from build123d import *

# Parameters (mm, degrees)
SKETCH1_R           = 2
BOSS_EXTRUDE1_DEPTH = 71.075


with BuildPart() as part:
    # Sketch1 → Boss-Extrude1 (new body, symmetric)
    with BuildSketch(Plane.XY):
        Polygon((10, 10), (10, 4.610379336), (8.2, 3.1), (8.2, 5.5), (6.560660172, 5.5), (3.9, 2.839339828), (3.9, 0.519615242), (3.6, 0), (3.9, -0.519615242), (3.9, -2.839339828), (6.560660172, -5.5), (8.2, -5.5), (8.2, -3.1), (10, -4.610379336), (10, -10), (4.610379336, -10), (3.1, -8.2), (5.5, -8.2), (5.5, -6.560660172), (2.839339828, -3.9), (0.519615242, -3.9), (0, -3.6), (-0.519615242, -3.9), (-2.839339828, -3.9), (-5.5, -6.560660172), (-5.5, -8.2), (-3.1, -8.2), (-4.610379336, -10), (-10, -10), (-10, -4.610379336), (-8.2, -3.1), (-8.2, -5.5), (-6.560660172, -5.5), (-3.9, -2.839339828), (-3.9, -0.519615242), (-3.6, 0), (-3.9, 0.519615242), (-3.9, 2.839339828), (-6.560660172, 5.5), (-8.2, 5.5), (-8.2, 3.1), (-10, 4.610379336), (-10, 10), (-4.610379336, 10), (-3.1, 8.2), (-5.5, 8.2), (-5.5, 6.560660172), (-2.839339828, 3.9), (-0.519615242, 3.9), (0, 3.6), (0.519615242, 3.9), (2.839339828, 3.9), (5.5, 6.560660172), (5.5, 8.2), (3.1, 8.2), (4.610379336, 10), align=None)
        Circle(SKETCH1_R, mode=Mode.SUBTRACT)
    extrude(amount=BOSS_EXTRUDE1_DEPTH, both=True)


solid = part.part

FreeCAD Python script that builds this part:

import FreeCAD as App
import Part
import Sketcher
Q = App.Units.Quantity

doc = App.newDocument("Part")
body = doc.addObject("PartDesign::Body", "Body")

# Sketch on XY plane
sketch1 = doc.addObject("Sketcher::SketchObject", "Sketch")
body.addObject(sketch1)
sketch1.AttachmentSupport = (doc.XY_Plane, [""])
sketch1.MapMode = "FlatFace"
sketch1.addGeometry([
    Part.LineSegment(App.Vector(10, 4.610379, 0), App.Vector(10, 10, 0)),  # 0
    Part.LineSegment(App.Vector(10, 10, 0), App.Vector(4.610379, 10, 0)),  # 1
    Part.LineSegment(App.Vector(4.610379, 10, 0), App.Vector(3.1, 8.2, 0)),  # 2
    Part.LineSegment(App.Vector(3.1, 8.2, 0), App.Vector(5.5, 8.2, 0)),  # 3
    Part.LineSegment(App.Vector(5.5, 8.2, 0), App.Vector(5.5, 6.56066, 0)),  # 4
    Part.LineSegment(App.Vector(5.5, 6.56066, 0), App.Vector(2.83934, 3.9, 0)),  # 5
    Part.LineSegment(App.Vector(2.83934, 3.9, 0), App.Vector(0.519615, 3.9, 0)),  # 6
    Part.LineSegment(App.Vector(0.519615, 3.9, 0), App.Vector(0, 3.6, 0)),  # 7
    Part.LineSegment(App.Vector(0, 3.6, 0), App.Vector(-0.519615, 3.9, 0)),  # 8
    Part.LineSegment(App.Vector(-0.519615, 3.9, 0), App.Vector(-2.83934, 3.9, 0)),  # 9
    Part.LineSegment(App.Vector(-2.83934, 3.9, 0), App.Vector(-5.5, 6.56066, 0)),  # 10
    Part.LineSegment(App.Vector(-5.5, 6.56066, 0), App.Vector(-5.5, 8.2, 0)),  # 11
    Part.LineSegment(App.Vector(-5.5, 8.2, 0), App.Vector(-3.1, 8.2, 0)),  # 12
    Part.LineSegment(App.Vector(-3.1, 8.2, 0), App.Vector(-4.610379, 10, 0)),  # 13
    Part.LineSegment(App.Vector(-4.610379, 10, 0), App.Vector(-10, 10, 0)),  # 14
    Part.LineSegment(App.Vector(-10, 10, 0), App.Vector(-10, 4.610379, 0)),  # 15
    Part.LineSegment(App.Vector(-10, 4.610379, 0), App.Vector(-8.2, 3.1, 0)),  # 16
    Part.LineSegment(App.Vector(-8.2, 3.1, 0), App.Vector(-8.2, 5.5, 0)),  # 17
    Part.LineSegment(App.Vector(-8.2, 5.5, 0), App.Vector(-6.56066, 5.5, 0)),  # 18
    Part.LineSegment(App.Vector(-6.56066, 5.5, 0), App.Vector(-3.9, 2.83934, 0)),  # 19
    Part.LineSegment(App.Vector(-3.9, 2.83934, 0), App.Vector(-3.9, 0.519615, 0)),  # 20
    Part.LineSegment(App.Vector(-3.9, 0.519615, 0), App.Vector(-3.6, 0, 0)),  # 21
    Part.LineSegment(App.Vector(-3.6, 0, 0), App.Vector(-3.9, -0.519615, 0)),  # 22
    Part.LineSegment(App.Vector(-3.9, -0.519615, 0), App.Vector(-3.9, -2.83934, 0)),  # 23
    Part.LineSegment(App.Vector(-3.9, -2.83934, 0), App.Vector(-6.56066, -5.5, 0)),  # 24
    Part.LineSegment(App.Vector(-6.56066, -5.5, 0), App.Vector(-8.2, -5.5, 0)),  # 25
    Part.LineSegment(App.Vector(-8.2, -5.5, 0), App.Vector(-8.2, -3.1, 0)),  # 26
    Part.LineSegment(App.Vector(-8.2, -3.1, 0), App.Vector(-10, -4.610379, 0)),  # 27
    Part.LineSegment(App.Vector(-10, -4.610379, 0), App.Vector(-10, -10, 0)),  # 28
    Part.LineSegment(App.Vector(-10, -10, 0), App.Vector(-4.610379, -10, 0)),  # 29
    Part.LineSegment(App.Vector(-4.610379, -10, 0), App.Vector(-3.1, -8.2, 0)),  # 30
    Part.LineSegment(App.Vector(-3.1, -8.2, 0), App.Vector(-5.5, -8.2, 0)),  # 31
    Part.LineSegment(App.Vector(-5.5, -8.2, 0), App.Vector(-5.5, -6.56066, 0)),  # 32
    Part.LineSegment(App.Vector(-5.5, -6.56066, 0), App.Vector(-2.83934, -3.9, 0)),  # 33
    Part.LineSegment(App.Vector(-2.83934, -3.9, 0), App.Vector(-0.519615, -3.9, 0)),  # 34
    Part.LineSegment(App.Vector(-0.519615, -3.9, 0), App.Vector(0, -3.6, 0)),  # 35
    Part.LineSegment(App.Vector(0, -3.6, 0), App.Vector(0.519615, -3.9, 0)),  # 36
    Part.LineSegment(App.Vector(0.519615, -3.9, 0), App.Vector(2.83934, -3.9, 0)),  # 37
    Part.LineSegment(App.Vector(2.83934, -3.9, 0), App.Vector(5.5, -6.56066, 0)),  # 38
    Part.LineSegment(App.Vector(5.5, -6.56066, 0), App.Vector(5.5, -8.2, 0)),  # 39
    Part.LineSegment(App.Vector(5.5, -8.2, 0), App.Vector(3.1, -8.2, 0)),  # 40
    Part.LineSegment(App.Vector(3.1, -8.2, 0), App.Vector(4.610379, -10, 0)),  # 41
    Part.LineSegment(App.Vector(4.610379, -10, 0), App.Vector(10, -10, 0)),  # 42
    Part.LineSegment(App.Vector(10, -10, 0), App.Vector(10, -4.610379, 0)),  # 43
    Part.LineSegment(App.Vector(10, -4.610379, 0), App.Vector(8.2, -3.1, 0)),  # 44
    Part.LineSegment(App.Vector(8.2, -3.1, 0), App.Vector(8.2, -5.5, 0)),  # 45
    Part.LineSegment(App.Vector(8.2, -5.5, 0), App.Vector(6.56066, -5.5, 0)),  # 46
    Part.LineSegment(App.Vector(6.56066, -5.5, 0), App.Vector(3.9, -2.83934, 0)),  # 47
    Part.LineSegment(App.Vector(3.9, -2.83934, 0), App.Vector(3.9, -0.519615, 0)),  # 48
    Part.LineSegment(App.Vector(3.9, -0.519615, 0), App.Vector(3.6, 0, 0)),  # 49
    Part.LineSegment(App.Vector(3.6, 0, 0), App.Vector(3.9, 0.519615, 0)),  # 50
    Part.LineSegment(App.Vector(3.9, 0.519615, 0), App.Vector(3.9, 2.83934, 0)),  # 51
    Part.LineSegment(App.Vector(3.9, 2.83934, 0), App.Vector(6.56066, 5.5, 0)),  # 52
    Part.LineSegment(App.Vector(6.56066, 5.5, 0), App.Vector(8.2, 5.5, 0)),  # 53
    Part.LineSegment(App.Vector(8.2, 5.5, 0), App.Vector(8.2, 3.1, 0)),  # 54
    Part.LineSegment(App.Vector(8.2, 3.1, 0), App.Vector(10, 4.610379, 0)),  # 55
    Part.Circle(App.Vector(0, 0, 0), App.Vector(0, 0, 1), 2),  # 56
], False)
sketch1.addConstraint([
    Sketcher.Constraint("Coincident", 0, 2, 1, 1),
    Sketcher.Constraint("Coincident", 1, 2, 2, 1),
    Sketcher.Constraint("Coincident", 2, 2, 3, 1),
    Sketcher.Constraint("Coincident", 3, 2, 4, 1),
    Sketcher.Constraint("Coincident", 4, 2, 5, 1),
    Sketcher.Constraint("Coincident", 5, 2, 6, 1),
    Sketcher.Constraint("Coincident", 6, 2, 7, 1),
    Sketcher.Constraint("Coincident", 7, 2, 8, 1),
    Sketcher.Constraint("Coincident", 8, 2, 9, 1),
    Sketcher.Constraint("Coincident", 9, 2, 10, 1),
    Sketcher.Constraint("Coincident", 10, 2, 11, 1),
    Sketcher.Constraint("Coincident", 11, 2, 12, 1),
    Sketcher.Constraint("Coincident", 12, 2, 13, 1),
    Sketcher.Constraint("Coincident", 13, 2, 14, 1),
    Sketcher.Constraint("Coincident", 14, 2, 15, 1),
    Sketcher.Constraint("Coincident", 15, 2, 16, 1),
    Sketcher.Constraint("Coincident", 16, 2, 17, 1),
    Sketcher.Constraint("Coincident", 17, 2, 18, 1),
    Sketcher.Constraint("Coincident", 18, 2, 19, 1),
    Sketcher.Constraint("Coincident", 19, 2, 20, 1),
    Sketcher.Constraint("Coincident", 20, 2, 21, 1),
    Sketcher.Constraint("Coincident", 21, 2, 22, 1),
    Sketcher.Constraint("Coincident", 22, 2, 23, 1),
    Sketcher.Constraint("Coincident", 23, 2, 24, 1),
    Sketcher.Constraint("Coincident", 24, 2, 25, 1),
    Sketcher.Constraint("Coincident", 25, 2, 26, 1),
    Sketcher.Constraint("Coincident", 26, 2, 27, 1),
    Sketcher.Constraint("Coincident", 27, 2, 28, 1),
    Sketcher.Constraint("Coincident", 28, 2, 29, 1),
    Sketcher.Constraint("Coincident", 29, 2, 30, 1),
    Sketcher.Constraint("Coincident", 30, 2, 31, 1),
    Sketcher.Constraint("Coincident", 31, 2, 32, 1),
    Sketcher.Constraint("Coincident", 32, 2, 33, 1),
    Sketcher.Constraint("Coincident", 33, 2, 34, 1),
    Sketcher.Constraint("Coincident", 34, 2, 35, 1),
    Sketcher.Constraint("Coincident", 35, 2, 36, 1),
    Sketcher.Constraint("Coincident", 36, 2, 37, 1),
    Sketcher.Constraint("Coincident", 37, 2, 38, 1),
    Sketcher.Constraint("Coincident", 38, 2, 39, 1),
    Sketcher.Constraint("Coincident", 39, 2, 40, 1),
    Sketcher.Constraint("Coincident", 40, 2, 41, 1),
    Sketcher.Constraint("Coincident", 41, 2, 42, 1),
    Sketcher.Constraint("Coincident", 42, 2, 43, 1),
    Sketcher.Constraint("Coincident", 43, 2, 44, 1),
    Sketcher.Constraint("Coincident", 44, 2, 45, 1),
    Sketcher.Constraint("Coincident", 45, 2, 46, 1),
    Sketcher.Constraint("Coincident", 46, 2, 47, 1),
    Sketcher.Constraint("Coincident", 47, 2, 48, 1),
    Sketcher.Constraint("Coincident", 48, 2, 49, 1),
    Sketcher.Constraint("Coincident", 49, 2, 50, 1),
    Sketcher.Constraint("Coincident", 50, 2, 51, 1),
    Sketcher.Constraint("Coincident", 51, 2, 52, 1),
    Sketcher.Constraint("Coincident", 52, 2, 53, 1),
    Sketcher.Constraint("Coincident", 53, 2, 54, 1),
    Sketcher.Constraint("Coincident", 54, 2, 55, 1),
    Sketcher.Constraint("Coincident", 55, 2, 0, 1),
    Sketcher.Constraint("Vertical", 0),
    Sketcher.Constraint("Horizontal", 1),
    Sketcher.Constraint("Horizontal", 3),
    Sketcher.Constraint("Vertical", 4),
    Sketcher.Constraint("Horizontal", 6),
    Sketcher.Constraint("Horizontal", 9),
    Sketcher.Constraint("Vertical", 11),
    Sketcher.Constraint("Horizontal", 12),
    Sketcher.Constraint("Horizontal", 14),
    Sketcher.Constraint("Vertical", 15),
    Sketcher.Constraint("Vertical", 17),
    Sketcher.Constraint("Horizontal", 18),
    Sketcher.Constraint("Vertical", 20),
    Sketcher.Constraint("Vertical", 23),
    Sketcher.Constraint("Horizontal", 25),
    Sketcher.Constraint("Vertical", 26),
    Sketcher.Constraint("Vertical", 28),
    Sketcher.Constraint("Horizontal", 29),
    Sketcher.Constraint("Horizontal", 31),
    Sketcher.Constraint("Vertical", 32),
    Sketcher.Constraint("Horizontal", 34),
    Sketcher.Constraint("Horizontal", 37),
    Sketcher.Constraint("Vertical", 39),
    Sketcher.Constraint("Horizontal", 40),
    Sketcher.Constraint("Horizontal", 42),
    Sketcher.Constraint("Vertical", 43),
    Sketcher.Constraint("Vertical", 45),
    Sketcher.Constraint("Horizontal", 46),
    Sketcher.Constraint("Vertical", 48),
    Sketcher.Constraint("Vertical", 51),
    Sketcher.Constraint("Horizontal", 53),
    Sketcher.Constraint("Vertical", 54),
    Sketcher.Constraint("Coincident", 56, 3, -1, 1),
    Sketcher.Constraint("Symmetric", 0, 2, 28, 2, -1, 1),
    Sketcher.Constraint("Symmetric", 2, 2, 30, 2, -1, 1),
    Sketcher.Constraint("Symmetric", 4, 2, 32, 2, -1, 1),
    Sketcher.Constraint("Symmetric", 5, 2, 33, 2, -1, 1),
    Sketcher.Constraint("Symmetric", 7, 2, 35, 2, -1, 1),
    Sketcher.Constraint("Symmetric", 8, 2, 36, 2, -1, 1),
    Sketcher.Constraint("Symmetric", 10, 2, 38, 2, -1, 1),
    Sketcher.Constraint("Symmetric", 12, 2, 40, 2, -1, 1),
    Sketcher.Constraint("Symmetric", 13, 2, 41, 2, -1, 1),
    Sketcher.Constraint("Symmetric", 15, 2, 43, 2, -1, 1),
    Sketcher.Constraint("Symmetric", 16, 2, 44, 2, -1, 1),
    Sketcher.Constraint("Symmetric", 18, 2, 46, 2, -1, 1),
    Sketcher.Constraint("Symmetric", 19, 2, 47, 2, -1, 1),
    Sketcher.Constraint("Symmetric", 21, 2, 49, 2, -1, 1),
    Sketcher.Constraint("Symmetric", 22, 2, 50, 2, -1, 1),
    Sketcher.Constraint("Symmetric", 24, 2, 52, 2, -1, 1),
    Sketcher.Constraint("Symmetric", 26, 2, 54, 2, -1, 1),
    Sketcher.Constraint("Symmetric", 6, 2, 8, 2, -2),
    Sketcher.Constraint("Symmetric", 4, 2, 10, 2, -2),
    Sketcher.Constraint("Symmetric", 2, 2, 12, 2, -2),
    Sketcher.Constraint("Symmetric", 1, 2, 13, 2, -2),
    Sketcher.Constraint("Symmetric", 27, 2, 43, 2, -2),
    Sketcher.Constraint("Symmetric", 26, 2, 44, 2, -2),
    Sketcher.Constraint("Symmetric", 24, 2, 46, 2, -2),
    Sketcher.Constraint("Symmetric", 23, 2, 47, 2, -2),
    Sketcher.Constraint("PointOnObject", 7, 2, -2),
    Sketcher.Constraint("PointOnObject", 21, 2, -1),
    Sketcher.Constraint("Perpendicular", 5, 10),
    Sketcher.Constraint("Perpendicular", 2, 16),
    Sketcher.Constraint("Parallel", 10, 19),
    Sketcher.Constraint("Perpendicular", 7, 21),
    Sketcher.Constraint("Perpendicular", 8, 22),
    Sketcher.Constraint("Perpendicular", 19, 24),
    Sketcher.Constraint("Perpendicular", 16, 30),
    Sketcher.Constraint("Perpendicular", 21, 35),
    Sketcher.Constraint("Perpendicular", 33, 38),
    Sketcher.Constraint("Perpendicular", 35, 49),
    Sketcher.Constraint("Perpendicular", 47, 52),
    Sketcher.Constraint("Perpendicular", 41, 55),
    Sketcher.Constraint("Equal", 42, 0),
    Sketcher.Constraint("Equal", 53, 4),
    Sketcher.Constraint("Equal", 40, 17),
    Sketcher.Constraint("Equal", 37, 20),
    Sketcher.Constraint("Equal", 13, 16),
    Sketcher.Constraint("Equal", 10, 19),
    Sketcher.Constraint("Equal", 8, 21),
    Sketcher.Constraint("Diameter", 56, 4.0),
    Sketcher.Constraint("Angle", 2, Q("-130 deg")),
    Sketcher.Constraint("Angle", 7, Q("-150 deg")),
    Sketcher.Constraint("DistanceX", 3, 1, 3, 2, 2.4),
    Sketcher.Constraint("DistanceX", -1, 1, 0, 2, 10.0),
    Sketcher.Constraint("Distance", 7, 0.6),
    Sketcher.Constraint("DistanceX", -1, 1, 2, 2, 3.1),
    Sketcher.Constraint("DistanceY", -1, 1, 2, 2, 8.2),
    Sketcher.Constraint("DistanceY", -1, 1, 5, 2, 3.9),
    Sketcher.Constraint("DistanceX", 18, 1, 18, 2, 1.63934),
])
pad1 = doc.addObject("PartDesign::Pad", "Pad")
body.addObject(pad1)
pad1.Profile = sketch1
pad1.Length = 142.15
pad1.Midplane = True

doc.recompute()
